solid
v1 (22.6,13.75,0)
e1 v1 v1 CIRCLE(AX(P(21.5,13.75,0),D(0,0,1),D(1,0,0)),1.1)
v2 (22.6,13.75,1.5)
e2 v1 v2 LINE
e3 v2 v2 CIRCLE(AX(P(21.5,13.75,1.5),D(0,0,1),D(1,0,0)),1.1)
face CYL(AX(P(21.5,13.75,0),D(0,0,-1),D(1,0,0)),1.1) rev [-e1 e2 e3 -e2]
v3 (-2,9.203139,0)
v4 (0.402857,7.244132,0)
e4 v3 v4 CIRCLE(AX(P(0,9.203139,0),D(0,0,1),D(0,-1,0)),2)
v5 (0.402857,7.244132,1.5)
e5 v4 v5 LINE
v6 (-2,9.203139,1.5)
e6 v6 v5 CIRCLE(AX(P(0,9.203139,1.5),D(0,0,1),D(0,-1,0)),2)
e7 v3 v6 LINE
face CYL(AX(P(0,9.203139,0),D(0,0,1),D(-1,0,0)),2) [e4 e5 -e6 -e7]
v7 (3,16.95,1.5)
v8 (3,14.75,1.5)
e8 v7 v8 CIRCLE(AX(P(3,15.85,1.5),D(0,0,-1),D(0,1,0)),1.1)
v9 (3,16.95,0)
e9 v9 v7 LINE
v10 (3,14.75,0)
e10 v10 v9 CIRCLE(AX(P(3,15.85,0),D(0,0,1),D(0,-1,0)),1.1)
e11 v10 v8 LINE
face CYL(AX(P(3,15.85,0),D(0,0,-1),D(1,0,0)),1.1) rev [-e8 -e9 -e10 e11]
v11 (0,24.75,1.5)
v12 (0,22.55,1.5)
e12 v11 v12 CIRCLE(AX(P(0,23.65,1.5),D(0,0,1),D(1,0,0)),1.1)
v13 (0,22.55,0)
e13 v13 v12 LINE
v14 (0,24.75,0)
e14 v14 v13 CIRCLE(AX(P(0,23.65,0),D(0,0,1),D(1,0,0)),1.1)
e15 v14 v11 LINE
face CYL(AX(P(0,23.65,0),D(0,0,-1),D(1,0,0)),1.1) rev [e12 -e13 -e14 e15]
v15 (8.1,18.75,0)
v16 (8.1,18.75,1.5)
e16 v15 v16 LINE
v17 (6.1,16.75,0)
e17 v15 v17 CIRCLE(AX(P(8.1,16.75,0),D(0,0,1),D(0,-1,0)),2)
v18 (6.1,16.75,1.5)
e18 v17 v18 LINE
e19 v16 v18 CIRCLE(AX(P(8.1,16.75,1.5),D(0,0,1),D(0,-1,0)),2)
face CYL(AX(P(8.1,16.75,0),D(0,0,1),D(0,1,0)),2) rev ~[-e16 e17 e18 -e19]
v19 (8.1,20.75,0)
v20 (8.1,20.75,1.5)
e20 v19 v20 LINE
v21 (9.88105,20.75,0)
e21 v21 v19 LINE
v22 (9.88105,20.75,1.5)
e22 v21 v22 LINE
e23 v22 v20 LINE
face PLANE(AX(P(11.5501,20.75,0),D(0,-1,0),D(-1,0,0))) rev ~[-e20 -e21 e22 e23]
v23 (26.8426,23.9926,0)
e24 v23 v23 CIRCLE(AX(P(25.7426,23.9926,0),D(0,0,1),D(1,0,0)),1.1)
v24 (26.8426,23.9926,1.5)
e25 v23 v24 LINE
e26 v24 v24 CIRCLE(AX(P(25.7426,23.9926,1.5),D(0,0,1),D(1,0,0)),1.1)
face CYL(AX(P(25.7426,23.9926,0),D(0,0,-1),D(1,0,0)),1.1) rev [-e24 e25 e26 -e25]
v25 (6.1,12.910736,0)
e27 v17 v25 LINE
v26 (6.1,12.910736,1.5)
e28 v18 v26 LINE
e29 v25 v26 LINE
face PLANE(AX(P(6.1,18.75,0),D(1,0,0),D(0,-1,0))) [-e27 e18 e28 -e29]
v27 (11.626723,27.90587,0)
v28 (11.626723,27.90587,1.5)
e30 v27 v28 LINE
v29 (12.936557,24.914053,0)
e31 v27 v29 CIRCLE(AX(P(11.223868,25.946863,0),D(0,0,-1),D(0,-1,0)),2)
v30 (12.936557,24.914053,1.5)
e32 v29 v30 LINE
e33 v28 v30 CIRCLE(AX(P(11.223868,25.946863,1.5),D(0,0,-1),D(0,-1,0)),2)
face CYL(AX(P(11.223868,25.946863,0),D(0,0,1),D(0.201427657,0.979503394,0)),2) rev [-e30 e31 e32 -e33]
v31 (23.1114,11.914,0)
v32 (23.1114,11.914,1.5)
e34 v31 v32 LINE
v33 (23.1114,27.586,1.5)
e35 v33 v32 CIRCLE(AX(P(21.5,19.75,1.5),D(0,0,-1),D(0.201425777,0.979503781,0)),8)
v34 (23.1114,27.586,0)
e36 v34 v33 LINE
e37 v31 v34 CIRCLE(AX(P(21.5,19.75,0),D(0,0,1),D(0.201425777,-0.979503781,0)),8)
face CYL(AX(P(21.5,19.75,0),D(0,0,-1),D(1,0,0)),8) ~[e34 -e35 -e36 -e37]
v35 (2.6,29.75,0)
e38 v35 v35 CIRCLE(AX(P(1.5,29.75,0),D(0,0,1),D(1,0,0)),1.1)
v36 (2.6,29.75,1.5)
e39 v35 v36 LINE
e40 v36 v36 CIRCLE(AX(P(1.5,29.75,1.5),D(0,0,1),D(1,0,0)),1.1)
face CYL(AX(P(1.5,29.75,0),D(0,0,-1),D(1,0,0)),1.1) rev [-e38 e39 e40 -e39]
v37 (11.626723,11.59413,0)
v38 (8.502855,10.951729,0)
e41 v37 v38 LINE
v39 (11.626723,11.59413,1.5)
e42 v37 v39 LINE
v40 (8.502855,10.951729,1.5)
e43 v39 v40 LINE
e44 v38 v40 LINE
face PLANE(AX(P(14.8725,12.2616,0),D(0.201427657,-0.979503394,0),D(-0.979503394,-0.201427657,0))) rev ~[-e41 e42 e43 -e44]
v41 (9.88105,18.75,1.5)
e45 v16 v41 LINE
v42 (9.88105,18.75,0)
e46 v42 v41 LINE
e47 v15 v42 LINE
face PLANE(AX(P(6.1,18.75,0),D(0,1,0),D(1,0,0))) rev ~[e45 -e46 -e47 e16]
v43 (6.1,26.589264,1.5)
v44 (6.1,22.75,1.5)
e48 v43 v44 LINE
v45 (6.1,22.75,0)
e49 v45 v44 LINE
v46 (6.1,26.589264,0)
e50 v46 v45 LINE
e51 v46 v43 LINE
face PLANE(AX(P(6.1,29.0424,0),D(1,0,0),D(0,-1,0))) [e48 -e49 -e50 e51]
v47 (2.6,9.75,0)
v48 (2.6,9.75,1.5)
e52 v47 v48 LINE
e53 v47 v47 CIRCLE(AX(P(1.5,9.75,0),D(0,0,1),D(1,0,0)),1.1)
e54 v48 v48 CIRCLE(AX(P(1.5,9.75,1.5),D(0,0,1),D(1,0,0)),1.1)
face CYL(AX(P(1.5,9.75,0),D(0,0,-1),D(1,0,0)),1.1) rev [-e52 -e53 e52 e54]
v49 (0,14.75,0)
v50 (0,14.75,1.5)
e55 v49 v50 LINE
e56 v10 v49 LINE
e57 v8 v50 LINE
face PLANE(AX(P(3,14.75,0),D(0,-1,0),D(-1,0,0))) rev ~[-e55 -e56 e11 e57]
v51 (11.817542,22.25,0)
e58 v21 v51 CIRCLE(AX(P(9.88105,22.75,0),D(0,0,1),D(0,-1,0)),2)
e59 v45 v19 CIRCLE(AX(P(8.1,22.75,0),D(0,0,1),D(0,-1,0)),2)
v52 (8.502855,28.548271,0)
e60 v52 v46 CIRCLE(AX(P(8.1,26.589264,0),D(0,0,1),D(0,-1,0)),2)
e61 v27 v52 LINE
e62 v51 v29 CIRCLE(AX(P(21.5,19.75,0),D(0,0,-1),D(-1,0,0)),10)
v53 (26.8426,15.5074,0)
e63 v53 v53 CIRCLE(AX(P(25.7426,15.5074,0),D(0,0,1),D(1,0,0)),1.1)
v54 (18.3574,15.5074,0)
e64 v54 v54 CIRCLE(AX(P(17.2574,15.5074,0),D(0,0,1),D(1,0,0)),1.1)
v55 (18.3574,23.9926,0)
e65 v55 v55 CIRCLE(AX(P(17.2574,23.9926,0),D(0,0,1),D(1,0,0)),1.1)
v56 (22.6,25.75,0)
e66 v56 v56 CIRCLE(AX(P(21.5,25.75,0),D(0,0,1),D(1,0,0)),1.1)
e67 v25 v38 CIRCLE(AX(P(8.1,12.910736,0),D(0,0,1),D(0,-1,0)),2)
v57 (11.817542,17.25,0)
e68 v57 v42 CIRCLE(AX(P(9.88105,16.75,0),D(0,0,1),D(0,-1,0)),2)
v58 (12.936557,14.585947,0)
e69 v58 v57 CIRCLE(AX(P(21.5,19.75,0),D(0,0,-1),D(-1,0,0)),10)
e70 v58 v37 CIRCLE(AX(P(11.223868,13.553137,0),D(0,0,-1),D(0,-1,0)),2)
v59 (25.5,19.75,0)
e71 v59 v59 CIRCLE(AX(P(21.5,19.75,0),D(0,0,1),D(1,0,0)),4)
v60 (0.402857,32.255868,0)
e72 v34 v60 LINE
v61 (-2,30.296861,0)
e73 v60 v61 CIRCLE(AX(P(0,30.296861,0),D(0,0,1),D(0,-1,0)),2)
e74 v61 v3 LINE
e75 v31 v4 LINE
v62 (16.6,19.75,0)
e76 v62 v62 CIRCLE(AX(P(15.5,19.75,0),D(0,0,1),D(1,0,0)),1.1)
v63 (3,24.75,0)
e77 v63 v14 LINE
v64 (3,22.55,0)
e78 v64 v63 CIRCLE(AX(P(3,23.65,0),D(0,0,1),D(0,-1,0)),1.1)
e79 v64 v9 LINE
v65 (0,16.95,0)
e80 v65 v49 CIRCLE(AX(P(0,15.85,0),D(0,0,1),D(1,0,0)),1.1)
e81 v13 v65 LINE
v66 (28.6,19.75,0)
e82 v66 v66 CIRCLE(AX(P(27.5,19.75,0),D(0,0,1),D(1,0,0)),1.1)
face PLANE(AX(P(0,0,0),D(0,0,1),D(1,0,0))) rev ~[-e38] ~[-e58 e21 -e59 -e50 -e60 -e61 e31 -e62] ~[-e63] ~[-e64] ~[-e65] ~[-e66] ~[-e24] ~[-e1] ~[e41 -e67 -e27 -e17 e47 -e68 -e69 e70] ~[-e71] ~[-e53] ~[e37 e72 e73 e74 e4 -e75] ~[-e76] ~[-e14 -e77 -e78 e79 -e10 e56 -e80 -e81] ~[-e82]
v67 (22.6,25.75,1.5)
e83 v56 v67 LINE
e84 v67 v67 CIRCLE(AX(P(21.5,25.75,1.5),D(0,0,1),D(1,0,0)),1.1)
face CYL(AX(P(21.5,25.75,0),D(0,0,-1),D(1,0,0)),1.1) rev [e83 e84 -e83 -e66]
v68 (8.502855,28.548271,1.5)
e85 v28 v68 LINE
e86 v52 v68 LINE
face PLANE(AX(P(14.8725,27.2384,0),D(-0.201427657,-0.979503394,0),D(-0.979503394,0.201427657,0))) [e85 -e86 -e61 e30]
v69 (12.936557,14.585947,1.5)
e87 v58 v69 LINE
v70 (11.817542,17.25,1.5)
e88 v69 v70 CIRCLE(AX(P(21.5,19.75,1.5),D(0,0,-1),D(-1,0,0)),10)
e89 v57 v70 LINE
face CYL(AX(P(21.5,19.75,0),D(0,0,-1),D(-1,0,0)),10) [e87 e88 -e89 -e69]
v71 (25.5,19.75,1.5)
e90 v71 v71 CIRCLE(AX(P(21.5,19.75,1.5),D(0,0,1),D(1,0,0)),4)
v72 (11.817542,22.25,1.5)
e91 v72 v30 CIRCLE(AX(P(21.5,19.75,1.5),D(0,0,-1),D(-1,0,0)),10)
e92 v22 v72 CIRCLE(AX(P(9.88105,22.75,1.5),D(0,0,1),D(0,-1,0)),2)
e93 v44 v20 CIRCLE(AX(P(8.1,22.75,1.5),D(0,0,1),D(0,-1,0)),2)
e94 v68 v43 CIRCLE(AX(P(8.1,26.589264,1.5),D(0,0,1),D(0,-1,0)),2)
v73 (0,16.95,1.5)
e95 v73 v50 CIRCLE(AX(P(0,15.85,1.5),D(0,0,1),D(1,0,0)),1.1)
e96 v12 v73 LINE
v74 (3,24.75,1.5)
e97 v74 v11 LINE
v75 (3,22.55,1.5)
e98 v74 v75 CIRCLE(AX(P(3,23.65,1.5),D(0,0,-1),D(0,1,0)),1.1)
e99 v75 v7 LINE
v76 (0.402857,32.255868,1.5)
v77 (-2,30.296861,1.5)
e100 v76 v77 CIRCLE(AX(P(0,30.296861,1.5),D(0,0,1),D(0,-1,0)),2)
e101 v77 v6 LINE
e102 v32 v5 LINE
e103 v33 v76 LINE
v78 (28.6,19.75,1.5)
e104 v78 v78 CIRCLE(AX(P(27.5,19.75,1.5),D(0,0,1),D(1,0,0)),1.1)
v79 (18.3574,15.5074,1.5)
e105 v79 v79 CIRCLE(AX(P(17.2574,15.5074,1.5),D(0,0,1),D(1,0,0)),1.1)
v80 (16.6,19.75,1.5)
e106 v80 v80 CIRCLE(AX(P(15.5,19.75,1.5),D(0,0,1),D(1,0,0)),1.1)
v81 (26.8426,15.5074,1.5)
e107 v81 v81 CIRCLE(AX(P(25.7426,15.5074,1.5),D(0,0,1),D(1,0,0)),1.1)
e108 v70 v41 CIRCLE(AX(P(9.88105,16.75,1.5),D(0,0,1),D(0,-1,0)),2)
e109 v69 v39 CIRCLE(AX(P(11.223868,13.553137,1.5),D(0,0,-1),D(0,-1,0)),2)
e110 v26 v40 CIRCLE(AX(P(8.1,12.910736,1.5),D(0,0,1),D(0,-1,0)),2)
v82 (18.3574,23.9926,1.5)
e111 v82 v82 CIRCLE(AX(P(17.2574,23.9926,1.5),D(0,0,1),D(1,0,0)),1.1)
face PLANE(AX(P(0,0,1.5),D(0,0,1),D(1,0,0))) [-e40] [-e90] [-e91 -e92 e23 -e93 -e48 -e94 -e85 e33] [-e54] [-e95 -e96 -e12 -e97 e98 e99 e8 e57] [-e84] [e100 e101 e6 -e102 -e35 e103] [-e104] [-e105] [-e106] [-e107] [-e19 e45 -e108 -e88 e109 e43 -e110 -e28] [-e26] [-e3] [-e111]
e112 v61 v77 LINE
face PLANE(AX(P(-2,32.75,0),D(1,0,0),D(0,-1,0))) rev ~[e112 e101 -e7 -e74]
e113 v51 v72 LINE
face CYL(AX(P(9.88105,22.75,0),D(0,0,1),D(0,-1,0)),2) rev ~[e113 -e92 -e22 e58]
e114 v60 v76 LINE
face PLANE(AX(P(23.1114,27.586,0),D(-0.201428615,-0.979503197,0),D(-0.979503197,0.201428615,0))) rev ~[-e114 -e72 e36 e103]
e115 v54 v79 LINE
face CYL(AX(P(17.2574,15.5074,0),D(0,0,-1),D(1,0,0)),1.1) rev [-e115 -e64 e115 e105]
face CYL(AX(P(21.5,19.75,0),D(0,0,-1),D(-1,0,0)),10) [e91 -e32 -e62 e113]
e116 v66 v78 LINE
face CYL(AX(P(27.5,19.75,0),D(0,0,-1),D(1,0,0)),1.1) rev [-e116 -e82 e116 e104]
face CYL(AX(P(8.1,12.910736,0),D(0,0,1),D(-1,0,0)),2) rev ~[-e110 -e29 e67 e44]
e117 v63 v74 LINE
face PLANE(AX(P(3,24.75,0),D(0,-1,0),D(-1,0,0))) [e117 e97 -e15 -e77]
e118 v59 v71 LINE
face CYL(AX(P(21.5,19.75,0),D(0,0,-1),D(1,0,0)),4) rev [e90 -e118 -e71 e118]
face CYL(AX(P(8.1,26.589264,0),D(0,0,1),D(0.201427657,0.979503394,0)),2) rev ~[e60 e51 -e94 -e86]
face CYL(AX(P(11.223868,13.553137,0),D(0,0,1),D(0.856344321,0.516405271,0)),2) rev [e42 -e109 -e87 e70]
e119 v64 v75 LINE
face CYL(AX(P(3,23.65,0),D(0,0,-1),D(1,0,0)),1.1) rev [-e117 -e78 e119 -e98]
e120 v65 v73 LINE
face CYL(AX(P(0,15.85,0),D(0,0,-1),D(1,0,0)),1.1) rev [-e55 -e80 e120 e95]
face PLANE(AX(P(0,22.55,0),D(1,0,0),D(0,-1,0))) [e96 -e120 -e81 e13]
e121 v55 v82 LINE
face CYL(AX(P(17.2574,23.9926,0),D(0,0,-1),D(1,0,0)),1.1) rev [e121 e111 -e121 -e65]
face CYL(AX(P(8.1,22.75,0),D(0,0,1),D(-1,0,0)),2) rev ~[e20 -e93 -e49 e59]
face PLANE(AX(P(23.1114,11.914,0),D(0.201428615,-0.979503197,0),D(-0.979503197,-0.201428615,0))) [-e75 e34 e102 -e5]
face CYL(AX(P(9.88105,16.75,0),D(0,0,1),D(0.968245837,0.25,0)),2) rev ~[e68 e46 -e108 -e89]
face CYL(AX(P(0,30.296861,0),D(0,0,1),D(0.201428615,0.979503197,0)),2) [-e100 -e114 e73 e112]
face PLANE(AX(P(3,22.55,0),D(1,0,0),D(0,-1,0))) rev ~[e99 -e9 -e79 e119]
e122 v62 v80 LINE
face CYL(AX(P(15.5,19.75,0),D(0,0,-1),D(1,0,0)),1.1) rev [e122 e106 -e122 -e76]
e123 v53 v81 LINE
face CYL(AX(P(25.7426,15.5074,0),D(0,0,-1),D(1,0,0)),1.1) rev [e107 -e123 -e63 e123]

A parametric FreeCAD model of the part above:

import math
import FreeCAD as App
import Part
import Sketcher
from FreeCAD import Vector
Q = App.Units.Quantity


def edges_at(feature, points):
    """Names of the edges that pass closest to the given points."""
    edges = feature.Shape.Edges
    near = lambda p: min(range(len(edges)), key=lambda i: edges[i].distToShape(Part.Vertex(*p))[0])
    return sorted({f"Edge{near(p) + 1}" for p in points})

doc = App.newDocument("Part")
params = doc.addObject("Spreadsheet::Sheet", "Params")
for row, (alias, value) in enumerate([
    ("sketch1_diameter", "8 mm"),
    ("sketch1_radius", "8 mm"),
    ("sketch1_diameter2", "2.2 mm"),
    ("sketch1_width", "3 mm"),
    ("sketch1_height", "26 mm"),
    ("pad1_length", "1.5 mm"),
    ("fillet_radius", "2 mm"),
    ("sketch2_radius", "10 mm"),
    ("sketch2_width", "5.45 mm"),
    ("pocket1_length", "1.5 mm"),
    ("fillet2_radius", "2 mm"),
], start=1):
    params.set(f"A{row}", alias)
    params.set(f"B{row}", "=" + value)
    params.setAlias(f"B{row}", alias)

body = doc.addObject("PartDesign::Body", "Body")

# Sketch on XY plane
sketch1 = body.newObject("Sketcher::SketchObject", "Sketch")
sketch1.AttachmentSupport = (doc.getObject("XY_Plane"), [""])
sketch1.MapMode = "FlatFace"
sketch1.addGeometry(Part.LineSegment(Vector(23.1114, 27.586, 0), Vector(-2, 32.75, 0)), False)
sketch1.addGeometry(Part.LineSegment(Vector(-2, 32.75, 0), Vector(-2, 6.75, 0)), False)
sketch1.addGeometry(Part.LineSegment(Vector(-2, 6.75, 0), Vector(23.1114, 11.914, 0)), False)
sketch1.addGeometry(Part.ArcOfCircle(Part.Circle(Vector(21.5, 19.75, 0), Vector(0, 0, 1), 8), math.radians(-78.379653), math.radians(78.379653)), False)
sketch1.addGeometry(Part.Circle(Vector(1.5, 9.75, 0), Vector(0, 0, 1), 1.1), False)
sketch1.addGeometry(Part.LineSegment(Vector(0, 24.75, 0), Vector(3, 24.75, 0)), False)
sketch1.addGeometry(Part.ArcOfCircle(Part.Circle(Vector(3, 23.65, 0), Vector(0, 0, 1), 1.1), math.radians(-90), math.radians(90)), False)
sketch1.addGeometry(Part.LineSegment(Vector(3, 22.55, 0), Vector(3, 16.95, 0)), False)
sketch1.addGeometry(Part.ArcOfCircle(Part.Circle(Vector(3, 15.85, 0), Vector(0, 0, 1), 1.1), math.radians(-90), math.radians(90)), False)
sketch1.addGeometry(Part.LineSegment(Vector(3, 14.75, 0), Vector(0, 14.75, 0)), False)
sketch1.addGeometry(Part.ArcOfCircle(Part.Circle(Vector(0, 15.85, 0), Vector(0, 0, 1), 1.1), math.radians(90), math.radians(270)), False)
sketch1.addGeometry(Part.LineSegment(Vector(0, 16.95, 0), Vector(0, 22.55, 0)), False)
sketch1.addGeometry(Part.ArcOfCircle(Part.Circle(Vector(0, 23.65, 0), Vector(0, 0, 1), 1.1), math.radians(90), math.radians(270)), False)
sketch1.addGeometry(Part.Circle(Vector(1.5, 29.75, 0), Vector(0, 0, 1), 1.1), False)
sketch1.addGeometry(Part.Circle(Vector(25.7426, 23.9926, 0), Vector(0, 0, 1), 1.1), False)
sketch1.addGeometry(Part.Circle(Vector(17.2574, 15.5074, 0), Vector(0, 0, 1), 1.1), False)
sketch1.addGeometry(Part.Circle(Vector(21.5, 13.75, 0), Vector(0, 0, 1), 1.1), False)
sketch1.addGeometry(Part.Circle(Vector(25.7426, 15.5074, 0), Vector(0, 0, 1), 1.1), False)
sketch1.addGeometry(Part.Circle(Vector(15.5, 19.75, 0), Vector(0, 0, 1), 1.1), False)
sketch1.addGeometry(Part.Circle(Vector(21.5, 19.75, 0), Vector(0, 0, 1), 4), False)
sketch1.addGeometry(Part.Circle(Vector(17.2574, 23.9926, 0), Vector(0, 0, 1), 1.1), False)
sketch1.addGeometry(Part.Circle(Vector(21.5, 25.75, 0), Vector(0, 0, 1), 1.1), False)
sketch1.addGeometry(Part.Circle(Vector(27.5, 19.75, 0), Vector(0, 0, 1), 1.1), False)
sketch1.addConstraint(Sketcher.Constraint("Coincident", 0, 2, 1, 1))
sketch1.addConstraint(Sketcher.Constraint("Coincident", 1, 2, 2, 1))
sketch1.addConstraint(Sketcher.Constraint("Tangent", 2, 2, 3, 1))
sketch1.addConstraint(Sketcher.Constraint("Tangent", 3, 2, 0, 1))
sketch1.addConstraint(Sketcher.Constraint("Tangent", 5, 2, 6, 2))
sketch1.addConstraint(Sketcher.Constraint("Coincident", 6, 1, 7, 1))
sketch1.addConstraint(Sketcher.Constraint("Coincident", 7, 2, 8, 2))
sketch1.addConstraint(Sketcher.Constraint("Tangent", 8, 1, 9, 1))
sketch1.addConstraint(Sketcher.Constraint("Tangent", 9, 2, 10, 2))
sketch1.addConstraint(Sketcher.Constraint("Coincident", 10, 1, 11, 1))
sketch1.addConstraint(Sketcher.Constraint("Coincident", 11, 2, 12, 2))
sketch1.addConstraint(Sketcher.Constraint("Tangent", 12, 1, 5, 1))
sketch1.addConstraint(Sketcher.Constraint("Vertical", 1))
sketch1.addConstraint(Sketcher.Constraint("Horizontal", 5))
sketch1.addConstraint(Sketcher.Constraint("Vertical", 7))
sketch1.addConstraint(Sketcher.Constraint("Horizontal", 9))
sketch1.addConstraint(Sketcher.Constraint("Vertical", 11))
sketch1.addConstraint(Sketcher.Constraint("Coincident", 19, 3, 3, 3))
sketch1.addConstraint(Sketcher.Constraint("Equal", 4, 6))
sketch1.addConstraint(Sketcher.Constraint("Equal", 6, 8))
sketch1.addConstraint(Sketcher.Constraint("Equal", 8, 10))
sketch1.addConstraint(Sketcher.Constraint("Equal", 10, 12))
sketch1.addConstraint(Sketcher.Constraint("Equal", 12, 13))
sketch1.addConstraint(Sketcher.Constraint("Equal", 13, 14))
sketch1.addConstraint(Sketcher.Constraint("Equal", 14, 15))
sketch1.addConstraint(Sketcher.Constraint("Equal", 15, 16))
sketch1.addConstraint(Sketcher.Constraint("Equal", 16, 17))
sketch1.addConstraint(Sketcher.Constraint("Equal", 17, 18))
sketch1.addConstraint(Sketcher.Constraint("Equal", 18, 20))
sketch1.addConstraint(Sketcher.Constraint("Equal", 20, 21))
sketch1.addConstraint(Sketcher.Constraint("Equal", 21, 22))
sketch1.addConstraint(Sketcher.Constraint("PointOnObject", 10, 3, -2))
sketch1.addConstraint(Sketcher.Constraint("PointOnObject", 12, 3, -2))
sketch1.addConstraint(Sketcher.Constraint("PointOnObject", 10, 1, -2))
sketch1.addConstraint(Sketcher.Constraint("Horizontal", 15, 3, 17, 3))
sketch1.addConstraint(Sketcher.Constraint("Horizontal", 3, 3, 18, 3))
sketch1.addConstraint(Sketcher.Constraint("Horizontal", 14, 3, 20, 3))
sketch1.addConstraint(Sketcher.Constraint("Horizontal", 19, 3, 22, 3))
sketch1.addConstraint(Sketcher.Constraint("Vertical", 6, 3, 8, 3))
sketch1.addConstraint(Sketcher.Constraint("Vertical", 4, 3, 13, 3))
sketch1.addConstraint(Sketcher.Constraint("Vertical", 3, 3, 16, 3))
sketch1.addConstraint(Sketcher.Constraint("Vertical", 14, 3, 17, 3))
sketch1.addConstraint(Sketcher.Constraint("Vertical", 15, 3, 20, 3))
sketch1.addConstraint(Sketcher.Constraint("Vertical", 19, 3, 21, 3))
sketch1.addConstraint(Sketcher.Constraint("Vertical", 2, 2, 3, 2))
sketch1.addConstraint(Sketcher.Constraint("Vertical", 5, 2, 6, 1))
sketch1.addConstraint(Sketcher.Constraint("Diameter", 19, 8.0))
sketch1.addConstraint(Sketcher.Constraint("Radius", 3, 8.0))
sketch1.addConstraint(Sketcher.Constraint("Diameter", 4, 2.2))
sketch1.addConstraint(Sketcher.Constraint("DistanceX", 0, 2, -1, 1, 2.0))
sketch1.addConstraint(Sketcher.Constraint("DistanceX", 4, 3, 3, 3, 20.0))
sketch1.addConstraint(Sketcher.Constraint("DistanceY", 4, 3, 13, 3, 20.0))
sketch1.addConstraint(Sketcher.Constraint("DistanceY", 16, 3, 3, 3, 6.0))
sketch1.addConstraint(Sketcher.Constraint("DistanceX", 18, 3, 3, 3, 6.0))
sketch1.addConstraint(Sketcher.Constraint("DistanceY", 3, 3, 21, 3, 6.0))
sketch1.addConstraint(Sketcher.Constraint("DistanceX", 3, 3, 22, 3, 6.0))
sketch1.addConstraint(Sketcher.Constraint("DistanceX", 5, 1, 5, 2, 3.0))
sketch1.addConstraint(Sketcher.Constraint("DistanceY", 1, 2, 1, 1, 26.0))
sketch1.addConstraint(Sketcher.Constraint("DistanceY", 7, 2, 7, 1, 5.6))
sketch1.addConstraint(Sketcher.Constraint("DistanceY", 4, 3, 3, 3, 10.0))
sketch1.addConstraint(Sketcher.Constraint("DistanceY", 5, 2, 13, 3, 5.0))
sketch1.addConstraint(Sketcher.Constraint("DistanceX", -1, 1, 3, 3, 21.5))
sketch1.addConstraint(Sketcher.Constraint("DistanceY", -1, 1, 3, 3, 19.75))
sketch1.addConstraint(Sketcher.Constraint("DistanceX", 15, 3, 2, 2, 5.854))
sketch1.addConstraint(Sketcher.Constraint("DistanceX", -1, 1, 14, 3, 25.7426))
sketch1.addConstraint(Sketcher.Constraint("DistanceY", -1, 1, 14, 3, 23.9926))
sketch1.addConstraint(Sketcher.Constraint("DistanceY", -1, 1, 15, 3, 15.5074))
sketch1.setExpression("Constraints[46]", "Params.sketch1_diameter")
sketch1.setExpression("Constraints[47]", "Params.sketch1_radius")
sketch1.setExpression("Constraints[48]", "Params.sketch1_diameter2")
sketch1.setExpression("Constraints[56]", "Params.sketch1_width")
sketch1.setExpression("Constraints[57]", "Params.sketch1_height")
pad1 = body.newObject("PartDesign::Pad", "Pad")
pad1.Profile = sketch1
pad1.setExpression("Length", "Params.pad1_length")
doc.recompute()

fillet = body.newObject("PartDesign::Fillet", "Fillet")
fillet.Base = (pad1, edges_at(pad1, [(-2, 32.75, 0.75), (-2, 6.75, 0.75)]))
fillet.setExpression("Radius", "Params.fillet_radius")

# Sketch on XY plane
sketch2 = body.newObject("Sketcher::SketchObject", "Sketch001")
sketch2.AttachmentSupport = (doc.getObject("XY_Plane"), [""])
sketch2.MapMode = "FlatFace"
sketch2.addGeometry(Part.LineSegment(Vector(6.1, 29.0424, 0), Vector(14.8725, 27.2384, 0)), False)
sketch2.addGeometry(Part.ArcOfCircle(Part.Circle(Vector(21.5, 19.75, 0), Vector(0, 0, 1), 10), math.radians(131.50997), math.radians(174.260844)), False)
sketch2.addGeometry(Part.LineSegment(Vector(11.5501, 20.75, 0), Vector(6.1, 20.75, 0)), False)
sketch2.addGeometry(Part.LineSegment(Vector(6.1, 20.75, 0), Vector(6.1, 29.0424, 0)), False)
sketch2.addGeometry(Part.ArcOfCircle(Part.Circle(Vector(21.5, 19.75, 0), Vector(0, 0, 1), 10), math.radians(-174.260844), math.radians(-131.50997)), False)
sketch2.addGeometry(Part.LineSegment(Vector(14.8725, 12.2616, 0), Vector(6.1, 10.4576, 0)), False)
sketch2.addGeometry(Part.LineSegment(Vector(6.1, 10.4576, 0), Vector(6.1, 18.75, 0)), False)
sketch2.addGeometry(Part.LineSegment(Vector(6.1, 18.75, 0), Vector(11.5501, 18.75, 0)), False)
sketch2.addConstraint(Sketcher.Constraint("Coincident", 0, 2, 1, 1))
sketch2.addConstraint(Sketcher.Constraint("Coincident", 1, 2, 2, 1))
sketch2.addConstraint(Sketcher.Constraint("Coincident", 2, 2, 3, 1))
sketch2.addConstraint(Sketcher.Constraint("Coincident", 3, 2, 0, 1))
sketch2.addConstraint(Sketcher.Constraint("Coincident", 4, 2, 5, 1))
sketch2.addConstraint(Sketcher.Constraint("Coincident", 5, 2, 6, 1))
sketch2.addConstraint(Sketcher.Constraint("Coincident", 6, 2, 7, 1))
sketch2.addConstraint(Sketcher.Constraint("Coincident", 7, 2, 4, 1))
sketch2.addConstraint(Sketcher.Constraint("Horizontal", 2))
sketch2.addConstraint(Sketcher.Constraint("Vertical", 3))
sketch2.addConstraint(Sketcher.Constraint("Vertical", 6))
sketch2.addConstraint(Sketcher.Constraint("Horizontal", 7))
sketch2.addConstraint(Sketcher.Constraint("Coincident", 4, 3, 1, 3))
sketch2.addConstraint(Sketcher.Constraint("Equal", 1, 4))
sketch2.addConstraint(Sketcher.Constraint("Vertical", 0, 2, 4, 2))
sketch2.addConstraint(Sketcher.Constraint("Vertical", 3, 2, 5, 2))
sketch2.addConstraint(Sketcher.Constraint("Vertical", 1, 2, 7, 2))
sketch2.addConstraint(Sketcher.Constraint("Equal", 3, 6))
sketch2.addConstraint(Sketcher.Constraint("Radius", 1, 10.0))
sketch2.addConstraint(Sketcher.Constraint("DistanceY", 6, 2, 2, 2, 2.0))
sketch2.addConstraint(Sketcher.Constraint("DistanceX", 2, 2, 2, 1, 5.45))
sketch2.addConstraint(Sketcher.Constraint("DistanceX", -1, 1, 1, 3, 21.5))
sketch2.addConstraint(Sketcher.Constraint("Angle", 0, Q("-11.6205 deg")))
sketch2.addConstraint(Sketcher.Constraint("DistanceY", -1, 1, 1, 3, 19.75))
sketch2.addConstraint(Sketcher.Constraint("Distance", 0, 8.956))
sketch2.setExpression("Constraints[18]", "Params.sketch2_radius")
sketch2.setExpression("Constraints[20]", "Params.sketch2_width")
pocket1 = body.newObject("PartDesign::Pocket", "Pocket")
pocket1.Profile = sketch2
pocket1.setExpression("Length", "Params.pocket1_length")
pocket1.Reversed = True
doc.recompute()

fillet2 = body.newObject("PartDesign::Fillet", "Fillet001")
fillet2.Base = (pocket1, edges_at(pocket1, [
    (14.873, 27.238, 0.75),
    (14.873, 12.262, 0.75),
    (6.1, 10.458, 0.75),
    (6.1, 29.042, 0.75),
    (11.55, 20.75, 0.75),
    (6.1, 20.75, 0.75),
    (6.1, 18.75, 0.75),
    (11.55, 18.75, 0.75),
]))
fillet2.setExpression("Radius", "Params.fillet2_radius")

doc.recompute()
